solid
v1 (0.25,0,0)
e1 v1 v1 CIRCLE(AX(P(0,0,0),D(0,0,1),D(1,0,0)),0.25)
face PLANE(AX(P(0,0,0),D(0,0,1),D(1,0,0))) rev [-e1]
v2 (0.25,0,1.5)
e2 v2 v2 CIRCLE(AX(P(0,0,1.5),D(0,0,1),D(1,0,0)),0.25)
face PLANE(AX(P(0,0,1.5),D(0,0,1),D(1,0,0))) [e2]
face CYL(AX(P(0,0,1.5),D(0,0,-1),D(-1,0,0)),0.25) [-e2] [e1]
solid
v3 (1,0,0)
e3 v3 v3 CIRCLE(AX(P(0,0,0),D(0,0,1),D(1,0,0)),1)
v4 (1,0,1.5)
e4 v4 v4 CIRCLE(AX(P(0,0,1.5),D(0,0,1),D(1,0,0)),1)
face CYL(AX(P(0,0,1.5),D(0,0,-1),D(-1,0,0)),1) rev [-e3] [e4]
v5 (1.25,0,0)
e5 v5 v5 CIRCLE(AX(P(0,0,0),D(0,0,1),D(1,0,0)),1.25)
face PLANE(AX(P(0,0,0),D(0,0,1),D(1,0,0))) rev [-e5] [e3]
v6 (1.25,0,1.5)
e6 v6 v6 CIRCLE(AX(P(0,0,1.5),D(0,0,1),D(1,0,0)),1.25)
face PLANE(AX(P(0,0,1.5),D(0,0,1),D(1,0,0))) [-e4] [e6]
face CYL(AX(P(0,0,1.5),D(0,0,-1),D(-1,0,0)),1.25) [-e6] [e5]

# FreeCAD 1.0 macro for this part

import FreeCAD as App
import Part
import Sketcher

V = App.Vector

doc = App.newDocument("Part")
body = doc.addObject("PartDesign::Body", "Body")

# Sketch on XY plane
sketch1 = doc.addObject("Sketcher::SketchObject", "Sketch")
body.addObject(sketch1)
sketch1.AttachmentSupport = (doc.XY_Plane, [""])
sketch1.MapMode = "FlatFace"
sketch1.addGeometry(Part.Circle(V(0, 0, 0), V(0, 0, 1), 1.2), False)
sketch1.addGeometry(Part.Circle(V(0, 0, 0), V(0, 0, 1), 1), False)
sketch1.addConstraint(Sketcher.Constraint("Coincident", 0, 3, -1, 1))
sketch1.addConstraint(Sketcher.Constraint("Coincident", 1, 3, -1, 1))
sketch1.addConstraint(Sketcher.Constraint("Diameter", 1, 2.0))
sketch1.addConstraint(Sketcher.Constraint("Diameter", 0, 2.5))
pad1 = doc.addObject("PartDesign::Pad", "Pad")
body.addObject(pad1)
pad1.Profile = sketch1
pad1.Length = 1.5
body2 = doc.addObject("PartDesign::Body", "Body001")

# Sketch on XY plane
sketch2 = doc.addObject("Sketcher::SketchObject", "Sketch001")
body2.addObject(sketch2)
sketch2.AttachmentSupport = (doc.getObject("XY_Plane001"), [""])
sketch2.MapMode = "FlatFace"
sketch2.addGeometry(Part.Circle(V(0, 0, 0), V(0, 0, 1), 0.25), False)
sketch2.addConstraint(Sketcher.Constraint("Coincident", 0, 3, -1, 1))
sketch2.addConstraint(Sketcher.Constraint("Diameter", 0, 0.5))
pad2 = doc.addObject("PartDesign::Pad", "Pad001")
body2.addObject(pad2)
pad2.Profile = sketch2
pad2.Length = 1.5

doc.recompute()
